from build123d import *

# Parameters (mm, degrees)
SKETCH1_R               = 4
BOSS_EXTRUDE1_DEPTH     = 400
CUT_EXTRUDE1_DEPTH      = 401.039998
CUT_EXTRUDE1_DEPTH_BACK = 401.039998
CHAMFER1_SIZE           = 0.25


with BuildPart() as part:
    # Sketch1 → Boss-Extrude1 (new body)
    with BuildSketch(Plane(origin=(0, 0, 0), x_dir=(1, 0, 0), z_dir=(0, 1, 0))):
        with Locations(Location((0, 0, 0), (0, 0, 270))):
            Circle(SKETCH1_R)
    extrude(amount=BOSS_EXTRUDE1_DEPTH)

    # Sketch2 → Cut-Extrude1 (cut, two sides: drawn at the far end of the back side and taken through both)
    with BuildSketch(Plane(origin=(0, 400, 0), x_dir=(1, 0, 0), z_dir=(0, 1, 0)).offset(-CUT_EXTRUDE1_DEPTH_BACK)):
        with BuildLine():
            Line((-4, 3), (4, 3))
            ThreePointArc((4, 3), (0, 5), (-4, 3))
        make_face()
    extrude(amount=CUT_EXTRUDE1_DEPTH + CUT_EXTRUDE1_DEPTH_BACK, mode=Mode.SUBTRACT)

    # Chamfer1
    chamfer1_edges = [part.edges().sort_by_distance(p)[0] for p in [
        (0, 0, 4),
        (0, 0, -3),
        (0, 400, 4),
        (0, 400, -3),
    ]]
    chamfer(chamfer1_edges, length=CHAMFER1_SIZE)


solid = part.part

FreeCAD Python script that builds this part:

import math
import FreeCAD as App
import Part
import Sketcher


def edges_at(feature, points):
    """Names of the edges that pass closest to the given points."""
    edges = feature.Shape.Edges
    near = lambda p: min(range(len(edges)), key=lambda i: edges[i].distToShape(Part.Vertex(*p))[0])
    return sorted({f"Edge{near(p) + 1}" for p in points})

doc = App.newDocument("Part")
params = doc.addObject("Spreadsheet::Sheet", "Params")
for row, (alias, value) in enumerate([
    ("sketch1_diameter", "8 mm"),
    ("pad1_length", "400 mm"),
    ("sketch2_radius", "5 mm"),
    ("sketch2_width", "8 mm"),
    ("chamfer_size", "0.25 mm"),
], start=1):
    params.set(f"A{row}", alias)
    params.set(f"B{row}", "=" + value)
    params.setAlias(f"B{row}", alias)

body = doc.addObject("PartDesign::Body", "Body")

# Sketch on XZ plane
sketch1 = body.newObject("Sketcher::SketchObject", "Sketch")
sketch1.AttachmentSupport = (doc.getObject("XZ_Plane"), [""])
sketch1.MapMode = "FlatFace"
sketch1.addGeometry(Part.Circle(App.Vector(0, 0, 0), App.Vector(0, 0, 1), 4), False)
sketch1.addConstraint([
    Sketcher.Constraint("Coincident", 0, 3, -1, 1),
    Sketcher.Constraint("Diameter", 0, 8.0),
])
sketch1.setExpression("Constraints[1]", "Params.sketch1_diameter")
pad1 = body.newObject("PartDesign::Pad", "Pad")
pad1.Profile = sketch1
pad1.setExpression("Length", "Params.pad1_length")
pad1.Reversed = True

# Sketch on XZ plane
sketch2 = body.newObject("Sketcher::SketchObject", "Sketch001")
sketch2.AttachmentSupport = (doc.getObject("XZ_Plane"), [""])
sketch2.MapMode = "FlatFace"
sketch2.AttachmentOffset = App.Placement(App.Vector(0, 0, -400), App.Rotation())
sketch2.addGeometry([
    Part.LineSegment(App.Vector(-4, -3, 0), App.Vector(4, -3, 0)),
    Part.ArcOfCircle(Part.Circle(App.Vector(0, 0, 0), App.Vector(0, 0, 1), 5), math.radians(-143.130102), math.radians(-36.869898)),
], False)
sketch2.addConstraint([
    Sketcher.Constraint("Coincident", 0, 1, 1, 1),
    Sketcher.Constraint("Coincident", 1, 2, 0, 2),
    Sketcher.Constraint("Horizontal", 0),
    Sketcher.Constraint("Coincident", 1, 3, -1, 1),
    Sketcher.Constraint("Radius", 1, 5.0),
    Sketcher.Constraint("DistanceX", 0, 1, 0, 2, 8.0),
])
sketch2.setExpression("Constraints[4]", "Params.sketch2_radius")
sketch2.setExpression("Constraints[5]", "Params.sketch2_width")
pocket1 = body.newObject("PartDesign::Pocket", "Pocket")
pocket1.Profile = sketch2
pocket1.Type = "ThroughAll"
pocket1.Midplane = True
doc.recompute()

chamfer = body.newObject("PartDesign::Chamfer", "Chamfer")
chamfer.Base = (pocket1, edges_at(pocket1, [
    (0, 0, 4),
    (0, 0, -3),
    (0, 400, 4),
    (0, 400, -3),
]))
chamfer.setExpression("Size", "Params.chamfer_size")

doc.recompute()
